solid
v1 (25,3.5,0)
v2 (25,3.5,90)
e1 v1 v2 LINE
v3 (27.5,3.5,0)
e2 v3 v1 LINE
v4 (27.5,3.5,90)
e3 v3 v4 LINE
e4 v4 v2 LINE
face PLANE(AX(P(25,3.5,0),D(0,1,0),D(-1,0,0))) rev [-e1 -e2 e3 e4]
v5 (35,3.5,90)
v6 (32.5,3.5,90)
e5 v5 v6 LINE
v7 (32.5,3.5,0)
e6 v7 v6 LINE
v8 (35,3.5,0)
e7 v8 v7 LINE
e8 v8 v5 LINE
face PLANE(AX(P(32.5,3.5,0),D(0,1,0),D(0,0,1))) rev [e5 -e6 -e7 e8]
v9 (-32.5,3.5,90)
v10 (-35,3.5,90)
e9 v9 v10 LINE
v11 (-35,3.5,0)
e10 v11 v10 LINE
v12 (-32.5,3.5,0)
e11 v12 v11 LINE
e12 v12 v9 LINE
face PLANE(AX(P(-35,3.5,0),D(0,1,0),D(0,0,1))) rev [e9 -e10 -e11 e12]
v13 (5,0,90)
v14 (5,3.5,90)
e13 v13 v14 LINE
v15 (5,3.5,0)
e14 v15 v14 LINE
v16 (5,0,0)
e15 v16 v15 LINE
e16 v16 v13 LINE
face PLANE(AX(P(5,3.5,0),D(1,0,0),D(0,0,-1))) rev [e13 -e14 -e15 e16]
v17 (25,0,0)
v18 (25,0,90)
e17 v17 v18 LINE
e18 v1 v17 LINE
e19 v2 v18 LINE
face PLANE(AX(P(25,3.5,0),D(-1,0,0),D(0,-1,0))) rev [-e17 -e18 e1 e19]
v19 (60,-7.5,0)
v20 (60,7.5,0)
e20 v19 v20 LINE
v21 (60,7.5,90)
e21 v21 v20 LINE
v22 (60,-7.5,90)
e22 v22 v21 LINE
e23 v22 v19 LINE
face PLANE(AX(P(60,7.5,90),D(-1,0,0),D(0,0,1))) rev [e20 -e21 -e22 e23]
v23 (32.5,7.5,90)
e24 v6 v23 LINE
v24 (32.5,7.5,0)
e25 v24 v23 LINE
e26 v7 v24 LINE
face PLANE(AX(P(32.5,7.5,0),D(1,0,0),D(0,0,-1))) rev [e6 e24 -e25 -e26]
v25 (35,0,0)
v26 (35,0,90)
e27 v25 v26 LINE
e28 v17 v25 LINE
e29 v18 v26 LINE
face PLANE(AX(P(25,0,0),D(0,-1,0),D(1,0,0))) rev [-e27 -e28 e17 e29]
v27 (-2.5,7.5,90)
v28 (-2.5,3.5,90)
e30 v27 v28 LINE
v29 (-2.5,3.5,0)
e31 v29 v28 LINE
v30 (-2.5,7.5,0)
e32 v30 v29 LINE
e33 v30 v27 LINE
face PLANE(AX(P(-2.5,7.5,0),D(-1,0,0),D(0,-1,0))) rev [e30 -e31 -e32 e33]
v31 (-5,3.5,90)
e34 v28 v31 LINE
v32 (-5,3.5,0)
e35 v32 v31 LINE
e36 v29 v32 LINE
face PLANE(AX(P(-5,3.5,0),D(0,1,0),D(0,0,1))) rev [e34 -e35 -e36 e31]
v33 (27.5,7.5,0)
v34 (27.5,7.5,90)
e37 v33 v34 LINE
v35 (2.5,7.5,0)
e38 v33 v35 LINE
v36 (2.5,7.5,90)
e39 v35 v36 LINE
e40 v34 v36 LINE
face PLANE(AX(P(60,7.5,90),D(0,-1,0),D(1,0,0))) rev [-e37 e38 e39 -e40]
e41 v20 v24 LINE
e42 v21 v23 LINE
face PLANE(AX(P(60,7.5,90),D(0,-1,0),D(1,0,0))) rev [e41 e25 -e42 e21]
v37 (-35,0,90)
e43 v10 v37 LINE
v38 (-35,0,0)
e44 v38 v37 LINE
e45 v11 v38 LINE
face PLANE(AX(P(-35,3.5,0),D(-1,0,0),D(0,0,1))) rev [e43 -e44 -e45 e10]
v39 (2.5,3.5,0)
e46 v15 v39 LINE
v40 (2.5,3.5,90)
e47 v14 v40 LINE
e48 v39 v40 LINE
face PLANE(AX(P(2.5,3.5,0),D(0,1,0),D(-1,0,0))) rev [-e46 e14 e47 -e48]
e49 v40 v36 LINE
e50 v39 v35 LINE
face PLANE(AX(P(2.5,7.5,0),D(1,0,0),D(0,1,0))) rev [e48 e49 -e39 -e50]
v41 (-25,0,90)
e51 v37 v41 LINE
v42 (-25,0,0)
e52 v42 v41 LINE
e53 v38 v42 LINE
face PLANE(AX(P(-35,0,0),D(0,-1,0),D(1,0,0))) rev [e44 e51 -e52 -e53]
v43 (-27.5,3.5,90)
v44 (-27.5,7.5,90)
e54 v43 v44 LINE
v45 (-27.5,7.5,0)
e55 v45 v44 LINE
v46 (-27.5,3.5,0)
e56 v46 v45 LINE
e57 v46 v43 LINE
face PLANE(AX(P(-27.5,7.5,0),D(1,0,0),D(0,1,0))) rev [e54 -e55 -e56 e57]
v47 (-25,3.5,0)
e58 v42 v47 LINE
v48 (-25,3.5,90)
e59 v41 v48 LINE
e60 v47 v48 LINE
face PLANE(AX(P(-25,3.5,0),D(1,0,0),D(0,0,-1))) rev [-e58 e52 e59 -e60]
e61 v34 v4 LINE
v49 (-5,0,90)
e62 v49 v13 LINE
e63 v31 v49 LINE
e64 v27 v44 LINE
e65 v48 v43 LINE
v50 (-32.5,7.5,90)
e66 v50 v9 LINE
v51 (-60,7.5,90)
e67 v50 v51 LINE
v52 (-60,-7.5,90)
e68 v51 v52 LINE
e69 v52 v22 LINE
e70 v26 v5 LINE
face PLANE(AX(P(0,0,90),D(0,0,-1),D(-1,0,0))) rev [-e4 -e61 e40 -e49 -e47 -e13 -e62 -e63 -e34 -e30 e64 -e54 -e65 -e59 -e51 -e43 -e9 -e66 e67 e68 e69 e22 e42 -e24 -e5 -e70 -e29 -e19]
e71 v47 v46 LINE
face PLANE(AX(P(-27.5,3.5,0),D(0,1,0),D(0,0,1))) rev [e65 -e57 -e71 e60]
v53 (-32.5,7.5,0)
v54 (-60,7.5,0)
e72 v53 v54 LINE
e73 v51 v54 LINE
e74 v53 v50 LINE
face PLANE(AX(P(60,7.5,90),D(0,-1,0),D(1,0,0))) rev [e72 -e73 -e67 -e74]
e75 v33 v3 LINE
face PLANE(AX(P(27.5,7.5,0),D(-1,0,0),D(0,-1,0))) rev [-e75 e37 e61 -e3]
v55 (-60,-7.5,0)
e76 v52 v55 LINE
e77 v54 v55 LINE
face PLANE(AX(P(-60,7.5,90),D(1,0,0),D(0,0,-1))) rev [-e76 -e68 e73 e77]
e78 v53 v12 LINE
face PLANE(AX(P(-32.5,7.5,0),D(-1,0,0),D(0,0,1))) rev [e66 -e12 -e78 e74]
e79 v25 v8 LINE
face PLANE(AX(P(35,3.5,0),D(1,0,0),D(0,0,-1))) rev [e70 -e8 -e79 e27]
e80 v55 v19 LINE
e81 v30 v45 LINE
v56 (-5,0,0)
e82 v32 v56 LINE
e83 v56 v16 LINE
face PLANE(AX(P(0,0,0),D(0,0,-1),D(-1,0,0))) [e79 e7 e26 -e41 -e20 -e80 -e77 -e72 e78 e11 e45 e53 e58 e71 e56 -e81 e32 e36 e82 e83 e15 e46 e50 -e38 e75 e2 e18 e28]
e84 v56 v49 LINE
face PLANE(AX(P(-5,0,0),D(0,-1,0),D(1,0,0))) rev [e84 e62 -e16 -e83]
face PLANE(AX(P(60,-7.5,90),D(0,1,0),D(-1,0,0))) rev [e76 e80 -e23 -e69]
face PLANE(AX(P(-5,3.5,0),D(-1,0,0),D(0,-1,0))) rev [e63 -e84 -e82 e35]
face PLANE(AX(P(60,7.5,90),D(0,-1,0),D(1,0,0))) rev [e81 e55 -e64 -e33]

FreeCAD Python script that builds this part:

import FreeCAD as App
import Part
import Sketcher
Q = App.Units.Quantity


def add_polygon(sketch, points):
    """Adds a closed chain of lines whose ends are joined by coincident constraints."""
    first, n = sketch.GeometryCount, len(points)
    for a, b in zip(points, points[1:] + points[:1]):
        sketch.addGeometry(Part.LineSegment(App.Vector(*a, 0), App.Vector(*b, 0)), False)
    for i in range(n):
        sketch.addConstraint(Sketcher.Constraint("Coincident", first + i, 2, first + (i + 1) % n, 1))

doc = App.newDocument("Part")
params = doc.addObject("Spreadsheet::Sheet", "Params")
for row, (alias, value) in enumerate([
    ("sketch1_width", "120 mm"),
    ("sketch1_height", "15 mm"),
    ("pad1_length", "90 mm"),
    ("sketch2_width", "5 mm"),
    ("sketch2_width2", "10 mm"),
    ("sketch2_height", "4 mm"),
    ("sketch2_height2", "3.5 mm"),
    ("pocket1_length", "90 mm"),
], start=1):
    params.set(f"A{row}", alias)
    params.set(f"B{row}", "=" + value)
    params.setAlias(f"B{row}", alias)

body = doc.addObject("PartDesign::Body", "Body")

# Sketch on XY plane
sketch1 = doc.addObject("Sketcher::SketchObject", "Sketch")
body.addObject(sketch1)
sketch1.AttachmentSupport = (doc.XY_Plane, [""])
sketch1.MapMode = "FlatFace"
add_polygon(sketch1, [(-60, 8), (-60, -8), (60, -8), (60, 8)])  # lines 0-3
sketch1.addConstraint([
    Sketcher.Constraint("Vertical", 0),
    Sketcher.Constraint("Horizontal", 1),
    Sketcher.Constraint("Vertical", 2),
    Sketcher.Constraint("Horizontal", 3),
    Sketcher.Constraint("Symmetric", 0, 2, 2, 2, -1, 1),
    Sketcher.Constraint("DistanceX", 1, 1, 1, 2, Q("120 mm")),
    Sketcher.Constraint("DistanceY", 0, 2, 0, 1, Q("15 mm")),
])
sketch1.setExpression("Constraints[9]", "Params.sketch1_width")
sketch1.setExpression("Constraints[10]", "Params.sketch1_height")
pad1 = doc.addObject("PartDesign::Pad", "Pad")
body.addObject(pad1)
pad1.Profile = sketch1
pad1.setExpression("Length", "Params.pad1_length")

# Sketch on XY plane
sketch2 = doc.addObject("Sketcher::SketchObject", "Sketch001")
body.addObject(sketch2)
sketch2.AttachmentSupport = (doc.XY_Plane, [""])
sketch2.MapMode = "FlatFace"
sketch2.AttachmentOffset = App.Placement(App.Vector(0, 0, 90), App.Rotation())
add_polygon(sketch2, [(35, 3.5), (32.5, 3.5), (32.5, 7.5), (27.5, 7.5), (27.5, 3.5), (25, 3.5), (25, 0), (35, 0)])  # lines 0-7
add_polygon(sketch2, [(-25, 3.5), (-27.5, 3.5), (-27.5, 7.5), (-32.5, 7.5), (-32.5, 3.5), (-35, 3.5), (-35, 0), (-25, 0)])  # lines 8-15
add_polygon(sketch2, [(2.5, 7.5), (-2.5, 7.5), (-2.5, 3.5), (-5, 3.5), (-5, 0), (5, 0), (5, 3.5), (2.5, 3.5)])  # lines 16-23
sketch2.addConstraint([
    Sketcher.Constraint("Horizontal", 0),
    Sketcher.Constraint("Vertical", 1),
    Sketcher.Constraint("Horizontal", 2),
    Sketcher.Constraint("Vertical", 3),
    Sketcher.Constraint("Horizontal", 4),
    Sketcher.Constraint("Vertical", 5),
    Sketcher.Constraint("Horizontal", 6),
    Sketcher.Constraint("Vertical", 7),
    Sketcher.Constraint("Horizontal", 8),
    Sketcher.Constraint("Vertical", 9),
    Sketcher.Constraint("Horizontal", 10),
    Sketcher.Constraint("Vertical", 11),
    Sketcher.Constraint("Horizontal", 12),
    Sketcher.Constraint("Vertical", 13),
    Sketcher.Constraint("Horizontal", 14),
    Sketcher.Constraint("Vertical", 15),
    Sketcher.Constraint("Horizontal", 16),
    Sketcher.Constraint("Vertical", 17),
    Sketcher.Constraint("Horizontal", 18),
    Sketcher.Constraint("Vertical", 19),
    Sketcher.Constraint("Horizontal", 20),
    Sketcher.Constraint("Vertical", 21),
    Sketcher.Constraint("Horizontal", 22),
    Sketcher.Constraint("Vertical", 23),
    Sketcher.Constraint("Symmetric", 6, 2, 13, 2, -1, 1),
    Sketcher.Constraint("Symmetric", 19, 2, 20, 2, -1, 1),
    Sketcher.Constraint("Symmetric", 3, 2, 8, 2, -2),
    Sketcher.Constraint("Symmetric", 1, 2, 10, 2, -2),
    Sketcher.Constraint("Symmetric", 5, 2, 14, 2, -2),
    Sketcher.Constraint("Symmetric", 17, 2, 22, 2, -2),
    Sketcher.Constraint("Horizontal", 0, 2, 3, 2),
    Sketcher.Constraint("Horizontal", 8, 2, 11, 2),
    Sketcher.Constraint("Horizontal", 10, 2, 16, 2),
    Sketcher.Constraint("Horizontal", 15, 2, 17, 2),
    Sketcher.Constraint("Equal", 0, 4),
    Sketcher.Constraint("Equal", 10, 16),
    Sketcher.Constraint("Equal", 12, 18),
    Sketcher.Constraint("DistanceX", 2, 2, 2, 1, Q("5 mm")),
    Sketcher.Constraint("DistanceX", 6, 1, 6, 2, Q("10 mm")),
    Sketcher.Constraint("DistanceY", 1, 1, 1, 2, Q("4 mm")),
    Sketcher.Constraint("DistanceY", 5, 2, 5, 1, Q("3.5 mm")),
    Sketcher.Constraint("DistanceX", -1, 1, 4, 2, Q("25 mm")),
])
sketch2.setExpression("Constraints[61]", "Params.sketch2_width")
sketch2.setExpression("Constraints[62]", "Params.sketch2_width2")
sketch2.setExpression("Constraints[63]", "Params.sketch2_height")
sketch2.setExpression("Constraints[64]", "Params.sketch2_height2")
pocket1 = doc.addObject("PartDesign::Pocket", "Pocket")
body.addObject(pocket1)
pocket1.Profile = sketch2
pocket1.setExpression("Length", "Params.pocket1_length")

doc.recompute()
